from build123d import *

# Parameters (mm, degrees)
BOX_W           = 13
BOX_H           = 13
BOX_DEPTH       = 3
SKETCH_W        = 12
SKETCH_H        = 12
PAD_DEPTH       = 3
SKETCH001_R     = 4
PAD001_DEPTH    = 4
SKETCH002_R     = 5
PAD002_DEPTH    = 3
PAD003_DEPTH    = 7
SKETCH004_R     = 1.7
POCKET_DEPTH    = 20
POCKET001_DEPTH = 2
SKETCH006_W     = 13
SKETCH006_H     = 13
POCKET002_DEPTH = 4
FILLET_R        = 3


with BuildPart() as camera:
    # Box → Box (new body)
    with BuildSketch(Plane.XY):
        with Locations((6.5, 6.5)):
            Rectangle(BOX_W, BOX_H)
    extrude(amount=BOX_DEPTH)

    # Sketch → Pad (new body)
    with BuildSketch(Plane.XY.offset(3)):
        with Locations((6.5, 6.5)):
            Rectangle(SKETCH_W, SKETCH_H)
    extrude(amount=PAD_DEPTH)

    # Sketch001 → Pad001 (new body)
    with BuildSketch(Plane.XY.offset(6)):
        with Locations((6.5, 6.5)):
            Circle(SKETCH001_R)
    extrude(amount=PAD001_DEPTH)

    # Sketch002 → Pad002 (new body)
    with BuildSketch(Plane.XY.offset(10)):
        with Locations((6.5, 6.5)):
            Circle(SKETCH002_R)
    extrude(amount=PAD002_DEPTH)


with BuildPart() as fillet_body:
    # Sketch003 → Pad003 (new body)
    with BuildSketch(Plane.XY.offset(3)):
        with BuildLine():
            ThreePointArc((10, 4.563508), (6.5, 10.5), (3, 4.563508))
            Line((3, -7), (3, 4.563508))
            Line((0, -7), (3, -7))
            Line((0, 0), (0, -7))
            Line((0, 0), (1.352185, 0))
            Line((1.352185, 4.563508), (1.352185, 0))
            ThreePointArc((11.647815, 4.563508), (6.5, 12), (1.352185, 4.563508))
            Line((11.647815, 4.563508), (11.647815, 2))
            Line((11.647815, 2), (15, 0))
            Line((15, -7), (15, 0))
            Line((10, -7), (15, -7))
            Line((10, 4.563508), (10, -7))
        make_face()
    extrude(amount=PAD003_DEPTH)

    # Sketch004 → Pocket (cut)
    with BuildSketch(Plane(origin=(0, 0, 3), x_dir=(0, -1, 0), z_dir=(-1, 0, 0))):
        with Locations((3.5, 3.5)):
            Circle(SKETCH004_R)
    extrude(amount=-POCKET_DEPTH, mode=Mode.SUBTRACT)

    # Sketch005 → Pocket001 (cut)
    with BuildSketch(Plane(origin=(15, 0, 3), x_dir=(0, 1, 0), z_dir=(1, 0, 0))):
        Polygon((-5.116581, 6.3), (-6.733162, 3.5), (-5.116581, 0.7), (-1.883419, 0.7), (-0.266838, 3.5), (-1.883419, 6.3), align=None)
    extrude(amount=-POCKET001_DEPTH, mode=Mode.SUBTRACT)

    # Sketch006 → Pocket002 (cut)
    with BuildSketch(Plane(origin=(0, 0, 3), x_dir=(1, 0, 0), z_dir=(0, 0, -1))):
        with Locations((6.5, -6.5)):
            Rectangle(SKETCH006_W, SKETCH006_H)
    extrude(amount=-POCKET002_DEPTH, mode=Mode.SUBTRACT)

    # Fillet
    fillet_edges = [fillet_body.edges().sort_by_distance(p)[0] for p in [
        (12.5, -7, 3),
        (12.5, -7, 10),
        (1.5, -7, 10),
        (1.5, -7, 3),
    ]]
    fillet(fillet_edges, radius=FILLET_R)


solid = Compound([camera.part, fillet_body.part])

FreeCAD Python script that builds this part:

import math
import FreeCAD as App
import Part
import Sketcher

V = App.Vector
Q = App.Units.Quantity


def edges_at(feature, points):
    """Names of the edges that pass closest to the given points."""
    edges = feature.Shape.Edges
    near = lambda p: min(range(len(edges)), key=lambda i: edges[i].distToShape(Part.Vertex(*p))[0])
    return sorted({f"Edge{near(p) + 1}" for p in points})


def add_polygon(sketch, points):
    """Adds a closed chain of lines whose ends are joined by coincident constraints."""
    first, n = sketch.GeometryCount, len(points)
    for a, b in zip(points, points[1:] + points[:1]):
        sketch.addGeometry(Part.LineSegment(App.Vector(*a, 0), App.Vector(*b, 0)), False)
    for i in range(n):
        sketch.addConstraint(Sketcher.Constraint("Coincident", first + i, 2, first + (i + 1) % n, 1))

doc = App.newDocument("Part")
body = doc.addObject("PartDesign::Body", "Body")

# Sketch on XY plane
sketch1 = doc.addObject("Sketcher::SketchObject", "Sketch")
body.addObject(sketch1)
sketch1.AttachmentSupport = (doc.XY_Plane, [""])
sketch1.MapMode = "FlatFace"
add_polygon(sketch1, [(0, 13), (0, 0), (13, 0), (13, 13)])  # lines 0-3
sketch1.addConstraint([
    Sketcher.Constraint("Vertical", 0),
    Sketcher.Constraint("Horizontal", 1),
    Sketcher.Constraint("Vertical", 2),
    Sketcher.Constraint("Horizontal", 3),
    Sketcher.Constraint("Coincident", 0, 2, -1, 1),
    Sketcher.Constraint("Equal", 3, 0),
    Sketcher.Constraint("DistanceX", 1, 1, 1, 2, 13.0),
])
pad1 = doc.addObject("PartDesign::Pad", "Pad")
body.addObject(pad1)
pad1.Profile = sketch1
pad1.Length = 3

# Sketch on XY plane
sketch2 = doc.addObject("Sketcher::SketchObject", "Sketch001")
body.addObject(sketch2)
sketch2.AttachmentSupport = (doc.XY_Plane, [""])
sketch2.MapMode = "FlatFace"
sketch2.AttachmentOffset = App.Placement(V(0, 0, 3), App.Rotation())
add_polygon(sketch2, [(0, 12), (0, 0), (12, 0), (12, 12)])  # lines 0-3
sketch2.addConstraint([
    Sketcher.Constraint("Vertical", 0),
    Sketcher.Constraint("Horizontal", 1),
    Sketcher.Constraint("Vertical", 2),
    Sketcher.Constraint("Horizontal", 3),
    Sketcher.Constraint("Equal", 3, 0),
    Sketcher.Constraint("DistanceX", 1, 1, 1, 2, 12.0),
    Sketcher.Constraint("DistanceX", -1, 1, 0, 2, 0.5),
    Sketcher.Constraint("DistanceY", -1, 1, 0, 2, 0.5),
])
pad2 = doc.addObject("PartDesign::Pad", "Pad001")
body.addObject(pad2)
pad2.Profile = sketch2
pad2.Length = 3

# Sketch on XY plane
sketch3 = doc.addObject("Sketcher::SketchObject", "Sketch002")
body.addObject(sketch3)
sketch3.AttachmentSupport = (doc.XY_Plane, [""])
sketch3.MapMode = "FlatFace"
sketch3.AttachmentOffset = App.Placement(V(0, 0, 6), App.Rotation())
sketch3.addGeometry(Part.Circle(V(6.5, 6.5, 0), V(0, 0, 1), 4), False)
sketch3.addConstraint([
    Sketcher.Constraint("Diameter", 0, 8.0),
    Sketcher.Constraint("DistanceX", -1, 1, 0, 3, 6.5),
    Sketcher.Constraint("DistanceY", -1, 1, 0, 3, 6.5),
])
pad3 = doc.addObject("PartDesign::Pad", "Pad002")
body.addObject(pad3)
pad3.Profile = sketch3
pad3.Length = 4

# Sketch on XY plane
sketch4 = doc.addObject("Sketcher::SketchObject", "Sketch003")
body.addObject(sketch4)
sketch4.AttachmentSupport = (doc.XY_Plane, [""])
sketch4.MapMode = "FlatFace"
sketch4.AttachmentOffset = App.Placement(V(0, 0, 10), App.Rotation())
sketch4.addGeometry(Part.Circle(V(6, 6, 0), V(0, 0, 1), 5), False)
sketch4.addConstraint([
    Sketcher.Constraint("Diameter", 0, 10.0),
    Sketcher.Constraint("DistanceX", -1, 1, 0, 3, 6.5),
    Sketcher.Constraint("DistanceY", -1, 1, 0, 3, 6.5),
])
pad4 = doc.addObject("PartDesign::Pad", "Pad003")
body.addObject(pad4)
pad4.Profile = sketch4
pad4.Length = 3
body2 = doc.addObject("PartDesign::Body", "Body001")

# Sketch on XY plane
sketch5 = doc.addObject("Sketcher::SketchObject", "Sketch004")
body2.addObject(sketch5)
sketch5.AttachmentSupport = (doc.getObject("XY_Plane001"), [""])
sketch5.MapMode = "FlatFace"
sketch5.AttachmentOffset = App.Placement(V(0, 0, 3), App.Rotation())
sketch5.addGeometry([
    Part.ArcOfCircle(Part.Circle(V(6.5, 6.5, 0), V(0, 0, 1), 4), math.radians(-29), math.radians(209)),  # 0
    Part.LineSegment(V(10, 4.6, 0), V(10, -7, 0)),  # 1
    Part.LineSegment(V(10, -7, 0), V(15, -7, 0)),  # 2
    Part.LineSegment(V(15, -7, 0), V(15, 0, 0)),  # 3
    Part.LineSegment(V(15, 0, 0), V(11.6, 2, 0)),  # 4
    Part.LineSegment(V(11.6, 2, 0), V(11.6, 4.6, 0)),  # 5
    Part.ArcOfCircle(Part.Circle(V(6.5, 6.5, 0), V(0, 0, 1), 5.5), math.radians(-21), math.radians(201)),  # 6
    Part.LineSegment(V(1.4, 4.6, 0), V(1.4, 0, 0)),  # 7
    Part.LineSegment(V(1.4, 0, 0), V(0, 0, 0)),  # 8
    Part.LineSegment(V(0, 0, 0), V(0, -7, 0)),  # 9
    Part.LineSegment(V(0, -7, 0), V(3, -7, 0)),  # 10
    Part.LineSegment(V(3, -7, 0), V(3, 4.6, 0)),  # 11
], False)
sketch5.addConstraint([
    Sketcher.Constraint("Coincident", 0, 1, 1, 1),
    Sketcher.Constraint("Coincident", 1, 2, 2, 1),
    Sketcher.Constraint("Coincident", 2, 2, 3, 1),
    Sketcher.Constraint("Coincident", 3, 2, 4, 1),
    Sketcher.Constraint("Coincident", 4, 2, 5, 1),
    Sketcher.Constraint("Coincident", 5, 2, 6, 1),
    Sketcher.Constraint("Coincident", 6, 2, 7, 1),
    Sketcher.Constraint("Coincident", 7, 2, 8, 1),
    Sketcher.Constraint("Coincident", 8, 2, 9, 1),
    Sketcher.Constraint("Coincident", 9, 2, 10, 1),
    Sketcher.Constraint("Coincident", 10, 2, 11, 1),
    Sketcher.Constraint("Coincident", 11, 2, 0, 2),
    Sketcher.Constraint("Vertical", 1),
    Sketcher.Constraint("Horizontal", 2),
    Sketcher.Constraint("Vertical", 3),
    Sketcher.Constraint("Vertical", 5),
    Sketcher.Constraint("Vertical", 7),
    Sketcher.Constraint("Horizontal", 8),
    Sketcher.Constraint("Vertical", 9),
    Sketcher.Constraint("Horizontal", 10),
    Sketcher.Constraint("Vertical", 11),
    Sketcher.Constraint("Coincident", 8, 2, -1, 1),
    Sketcher.Constraint("Coincident", 6, 3, 0, 3),
    Sketcher.Constraint("PointOnObject", 3, 2, -1),
    Sketcher.Constraint("Horizontal", 0, 1, 5, 2),
    Sketcher.Constraint("Horizontal", 5, 2, 6, 2),
    Sketcher.Constraint("Horizontal", 2, 2, 9, 2),
    Sketcher.Constraint("Horizontal", 6, 2, 11, 2),
    Sketcher.Constraint("Radius", 0, 4.0),
    Sketcher.Constraint("Radius", 6, 5.5),
    Sketcher.Constraint("DistanceX", 2, 1, 2, 2, 5.0),
    Sketcher.Constraint("DistanceX", 10, 1, 10, 2, 3.0),
    Sketcher.Constraint("DistanceY", 3, 1, 3, 2, 7.0),
    Sketcher.Constraint("DistanceX", -1, 1, 0, 1, 10.0),
    Sketcher.Constraint("DistanceY", -1, 1, 4, 2, 2.0),
    Sketcher.Constraint("DistanceY", -1, 1, 0, 3, 6.5),
])
pad5 = doc.addObject("PartDesign::Pad", "Pad004")
body2.addObject(pad5)
pad5.Profile = sketch5
pad5.Length = 7

# Sketch on YZ plane
sketch6 = doc.addObject("Sketcher::SketchObject", "Sketch005")
body2.addObject(sketch6)
sketch6.AttachmentSupport = (doc.getObject("YZ_Plane001"), [""])
sketch6.MapMode = "FlatFace"
sketch6.addGeometry(Part.Circle(V(-3.5, 6.5, 0), V(0, 0, 1), 1.7), False)
sketch6.addConstraint([
    Sketcher.Constraint("Diameter", 0, 3.4),
    Sketcher.Constraint("DistanceX", 0, 3, -1, 1, 3.5),
    Sketcher.Constraint("DistanceY", -1, 1, 0, 3, 6.5),
])
pocket1 = doc.addObject("PartDesign::Pocket", "Pocket")
body2.addObject(pocket1)
pocket1.Profile = sketch6
pocket1.Length = 20
pocket1.Reversed = True

# Sketch on YZ plane
sketch7 = doc.addObject("Sketcher::SketchObject", "Sketch006")
body2.addObject(sketch7)
sketch7.AttachmentSupport = (doc.getObject("YZ_Plane001"), [""])
sketch7.MapMode = "FlatFace"
sketch7.AttachmentOffset = App.Placement(V(0, 0, 15), App.Rotation())
add_polygon(sketch7, [(-5.1, 9.3), (-6.7, 6.5), (-5.1, 3.7), (-1.9, 3.7), (-0.3, 6.5), (-1.9, 9.3)])  # lines 0-5
sketch7.addConstraint([
    Sketcher.Constraint("Horizontal", 2),
    Sketcher.Constraint("Horizontal", 5),
    Sketcher.Constraint("Parallel", 0, 3),
    Sketcher.Constraint("Parallel", 1, 4),
    Sketcher.Constraint("Horizontal", 0, 2, 3, 2),
    Sketcher.Constraint("Vertical", 2, 2, 4, 2),
    Sketcher.Constraint("Vertical", 1, 2, 5, 2),
    Sketcher.Constraint("Angle", 0, Q("-120.000004 deg")),
    Sketcher.Constraint("DistanceY", -1, 1, 0, 2, 6.5),
    Sketcher.Constraint("DistanceY", -1, 1, 1, 2, 3.7),
    Sketcher.Constraint("DistanceX", 2, 1, 2, 2, 3.233162),
    Sketcher.Constraint("DistanceX", 1, 2, -1, 1, 5.116581),
])
pocket2 = doc.addObject("PartDesign::Pocket", "Pocket001")
body2.addObject(pocket2)
pocket2.Profile = sketch7
pocket2.Length = 2

# Sketch on XY plane
sketch8 = doc.addObject("Sketcher::SketchObject", "Sketch007")
body2.addObject(sketch8)
sketch8.AttachmentSupport = (doc.getObject("XY_Plane001"), [""])
sketch8.MapMode = "FlatFace"
sketch8.AttachmentOffset = App.Placement(V(0, 0, 3), App.Rotation())
add_polygon(sketch8, [(0, 0), (0, 13), (13, 13), (13, 0)])  # lines 0-3
sketch8.addConstraint([
    Sketcher.Constraint("Vertical", 0),
    Sketcher.Constraint("Horizontal", 1),
    Sketcher.Constraint("Vertical", 2),
    Sketcher.Constraint("Horizontal", 3),
    Sketcher.Constraint("Coincident", 3, 2, -1, 1),
    Sketcher.Constraint("Equal", 3, 0),
    Sketcher.Constraint("DistanceX", 1, 1, 1, 2, 13.0),
])
pocket3 = doc.addObject("PartDesign::Pocket", "Pocket002")
body2.addObject(pocket3)
pocket3.Profile = sketch8
pocket3.Length = 4
pocket3.Reversed = True
doc.recompute()

fillet = doc.addObject("PartDesign::Fillet", "Fillet")
body2.addObject(fillet)
fillet.Base = (pocket3, edges_at(pocket3, [
    (12.5, -7, 3),
    (12.5, -7, 10),
    (1.5, -7, 10),
    (1.5, -7, 3),
]))
fillet.Radius = 3

doc.recompute()
